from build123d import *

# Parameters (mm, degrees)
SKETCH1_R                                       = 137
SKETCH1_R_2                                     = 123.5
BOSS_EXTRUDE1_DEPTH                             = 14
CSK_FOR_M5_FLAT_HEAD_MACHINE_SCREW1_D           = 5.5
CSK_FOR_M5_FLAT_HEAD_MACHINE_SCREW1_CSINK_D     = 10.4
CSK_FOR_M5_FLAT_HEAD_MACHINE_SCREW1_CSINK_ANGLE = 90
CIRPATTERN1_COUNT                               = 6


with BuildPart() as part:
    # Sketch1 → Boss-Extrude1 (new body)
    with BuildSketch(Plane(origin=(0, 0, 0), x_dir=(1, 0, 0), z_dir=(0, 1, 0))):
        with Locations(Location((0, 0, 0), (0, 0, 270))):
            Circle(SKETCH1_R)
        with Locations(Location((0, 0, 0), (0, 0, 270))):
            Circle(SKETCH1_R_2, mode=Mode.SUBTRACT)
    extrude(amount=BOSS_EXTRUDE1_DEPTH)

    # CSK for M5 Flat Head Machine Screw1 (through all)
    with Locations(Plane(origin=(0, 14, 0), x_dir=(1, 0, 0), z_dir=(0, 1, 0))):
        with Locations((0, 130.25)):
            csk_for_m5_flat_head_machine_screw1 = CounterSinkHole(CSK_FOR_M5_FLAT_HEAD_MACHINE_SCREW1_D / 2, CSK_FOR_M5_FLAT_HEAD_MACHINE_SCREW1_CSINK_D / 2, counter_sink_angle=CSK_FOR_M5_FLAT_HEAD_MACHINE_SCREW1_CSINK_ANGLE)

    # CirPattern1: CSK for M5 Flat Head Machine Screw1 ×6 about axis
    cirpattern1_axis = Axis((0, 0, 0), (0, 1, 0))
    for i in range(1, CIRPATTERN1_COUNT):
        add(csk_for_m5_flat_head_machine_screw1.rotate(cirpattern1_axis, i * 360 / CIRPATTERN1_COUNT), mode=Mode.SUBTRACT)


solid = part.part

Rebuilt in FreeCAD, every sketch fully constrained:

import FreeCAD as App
import Part
import Sketcher
from FreeCAD import Vector
Q = App.Units.Quantity

doc = App.newDocument("Part")
body = doc.addObject("PartDesign::Body", "Body")

# Sketch on XZ plane
sketch1 = body.newObject("Sketcher::SketchObject", "Sketch")
sketch1.AttachmentSupport = (doc.getObject("XZ_Plane"), [""])
sketch1.MapMode = "FlatFace"
sketch1.addGeometry([
    Part.Circle(Vector(0, 0, 0), Vector(0, 0, 1), 137),
    Part.Circle(Vector(0, 0, 0), Vector(0, 0, 1), 124),
], False)
sketch1.addConstraint([
    Sketcher.Constraint("Coincident", 0, 3, -1, 1),
    Sketcher.Constraint("Coincident", 1, 3, -1, 1),
    Sketcher.Constraint("Diameter", 0, Q("274 mm")),
    Sketcher.Constraint("Diameter", 1, Q("247 mm")),
])
pad1 = body.newObject("PartDesign::Pad", "Pad")
pad1.Profile = sketch1
pad1.Length = 14
pad1.Reversed = True

# Sketch on XZ plane
sketch2 = body.newObject("Sketcher::SketchObject", "Sketch001")
sketch2.AttachmentSupport = (doc.getObject("XZ_Plane"), [""])
sketch2.MapMode = "FlatFace"
sketch2.AttachmentOffset = App.Placement(Vector(0, 0, -14), App.Rotation())
sketch2.addGeometry(Part.Circle(Vector(0, -130.2, 0), Vector(0, 0, 1), 2.8), False)
sketch2.addConstraint([
    Sketcher.Constraint("PointOnObject", 0, 3, -2),
    Sketcher.Constraint("Diameter", 0, Q("5.5 mm")),
    Sketcher.Constraint("DistanceY", 0, 3, -1, 1, Q("130.25 mm")),
])
doc.recompute()
hole = body.newObject("PartDesign::Hole", "Hole")
hole.Profile = sketch2
hole.ThreadType = "None"
hole.Diameter = 5.5
hole.DepthType = "ThroughAll"
hole.HoleCutType = "Countersink"
hole.HoleCutDiameter = 10.4
hole.HoleCutCountersinkAngle = 90
hole.Reversed = True
doc.recompute()

polarpattern = body.newObject("PartDesign::PolarPattern", "PolarPattern")
polarpattern.Originals = [hole]
polarpattern.Axis = (doc.getObject("Y_Axis"), [""])
polarpattern.Angle = 360
polarpattern.Occurrences = 6
body.Tip = polarpattern

doc.recompute()
